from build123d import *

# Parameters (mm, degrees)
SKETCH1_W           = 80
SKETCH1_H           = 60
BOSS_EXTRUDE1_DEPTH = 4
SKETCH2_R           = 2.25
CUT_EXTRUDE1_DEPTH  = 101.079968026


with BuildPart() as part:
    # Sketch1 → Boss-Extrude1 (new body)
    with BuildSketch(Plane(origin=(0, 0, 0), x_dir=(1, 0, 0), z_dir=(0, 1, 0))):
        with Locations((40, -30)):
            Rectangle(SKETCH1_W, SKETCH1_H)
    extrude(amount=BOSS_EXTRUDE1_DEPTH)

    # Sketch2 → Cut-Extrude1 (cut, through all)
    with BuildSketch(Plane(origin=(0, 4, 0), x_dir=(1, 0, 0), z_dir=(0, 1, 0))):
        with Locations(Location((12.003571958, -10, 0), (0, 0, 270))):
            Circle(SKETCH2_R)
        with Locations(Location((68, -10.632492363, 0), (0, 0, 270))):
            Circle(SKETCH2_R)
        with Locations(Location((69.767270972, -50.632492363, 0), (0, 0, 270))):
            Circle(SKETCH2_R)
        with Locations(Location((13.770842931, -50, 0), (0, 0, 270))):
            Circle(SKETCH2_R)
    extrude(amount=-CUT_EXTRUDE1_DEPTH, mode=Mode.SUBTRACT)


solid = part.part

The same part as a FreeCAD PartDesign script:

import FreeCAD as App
import Part
import Sketcher

V = App.Vector
Q = App.Units.Quantity

doc = App.newDocument("Part")
params = doc.addObject("Spreadsheet::Sheet", "Params")
for row, (alias, value) in enumerate([
    ("sketch1_width", "80 mm"),
    ("sketch1_height", "60 mm"),
    ("pad1_length", "4 mm"),
    ("sketch2_diameter", "4.5 mm"),
], start=1):
    params.set(f"A{row}", alias)
    params.set(f"B{row}", "=" + value)
    params.setAlias(f"B{row}", alias)

body = doc.addObject("PartDesign::Body", "Body")

sketch1 = doc.addObject("Sketcher::SketchObject", "Sketch")
body.addObject(sketch1)
sketch1.AttachmentSupport = (doc.XZ_Plane, [""])
sketch1.MapMode = "FlatFace"
sketch1.addGeometry([
    Part.LineSegment(V(0, 0, 0), V(0, 60, 0)),
    Part.LineSegment(V(0, 60, 0), V(80, 60, 0)),
    Part.LineSegment(V(80, 60, 0), V(80, 0, 0)),
    Part.LineSegment(V(80, 0, 0), V(0, 0, 0)),
], False)
sketch1.addConstraint([
    Sketcher.Constraint("Coincident", 0, 2, 1, 1),
    Sketcher.Constraint("Coincident", 1, 2, 2, 1),
    Sketcher.Constraint("Coincident", 2, 2, 3, 1),
    Sketcher.Constraint("Coincident", 3, 2, 0, 1),
    Sketcher.Constraint("Vertical", 0),
    Sketcher.Constraint("Horizontal", 1),
    Sketcher.Constraint("Vertical", 2),
    Sketcher.Constraint("Horizontal", 3),
    Sketcher.Constraint("Coincident", 3, 2, -1, 1),
    Sketcher.Constraint("DistanceX", 1, 1, 1, 2, Q("80 mm")),
    Sketcher.Constraint("DistanceY", 0, 1, 0, 2, Q("60 mm")),
])
sketch1.setExpression("Constraints[9]", "Params.sketch1_width")
sketch1.setExpression("Constraints[10]", "Params.sketch1_height")
pad1 = doc.addObject("PartDesign::Pad", "Pad")
body.addObject(pad1)
pad1.Profile = sketch1
pad1.setExpression("Length", "Params.pad1_length")
pad1.Reversed = True

sketch2 = doc.addObject("Sketcher::SketchObject", "Sketch001")
body.addObject(sketch2)
sketch2.AttachmentSupport = (doc.XZ_Plane, [""])
sketch2.MapMode = "FlatFace"
sketch2.AttachmentOffset = App.Placement(V(0, 0, -4), App.Rotation())
sketch2.addGeometry([
    Part.Circle(V(12.003572, 10, 0), V(0, 0, 1), 2.25),
    Part.Circle(V(68, 10.632492, 0), V(0, 0, 1), 2.25),
    Part.Circle(V(69.767271, 50.632492, 0), V(0, 0, 1), 2.25),
    Part.Circle(V(13.770843, 50, 0), V(0, 0, 1), 2.25),
], False)
sketch2.addConstraint([
    Sketcher.Constraint("Equal", 0, 1),
    Sketcher.Constraint("Equal", 1, 2),
    Sketcher.Constraint("Equal", 2, 3),
    Sketcher.Constraint("Diameter", 0, Q("4.5 mm")),
    Sketcher.Constraint("DistanceY", -1, 1, 0, 3, Q("10 mm")),
    Sketcher.Constraint("DistanceX", -1, 1, 1, 3, Q("68 mm")),
    Sketcher.Constraint("DistanceY", -1, 1, 3, 3, Q("50 mm")),
    Sketcher.Constraint("DistanceY", 1, 3, 2, 3, Q("40 mm")),
    Sketcher.Constraint("DistanceX", 0, 3, 2, 3, Q("57.763699 mm")),
    Sketcher.Constraint("DistanceX", -1, 1, 0, 3, Q("12.003572 mm")),
    Sketcher.Constraint("DistanceX", 0, 3, 3, 3, Q("1.767271 mm")),
    Sketcher.Constraint("DistanceY", -1, 1, 1, 3, Q("10.632492 mm")),
])
sketch2.setExpression("Constraints[3]", "Params.sketch2_diameter")
pocket1 = doc.addObject("PartDesign::Pocket", "Pocket")
body.addObject(pocket1)
pocket1.Profile = sketch2
pocket1.Type = "ThroughAll"
pocket1.Reversed = True

doc.recompute()
